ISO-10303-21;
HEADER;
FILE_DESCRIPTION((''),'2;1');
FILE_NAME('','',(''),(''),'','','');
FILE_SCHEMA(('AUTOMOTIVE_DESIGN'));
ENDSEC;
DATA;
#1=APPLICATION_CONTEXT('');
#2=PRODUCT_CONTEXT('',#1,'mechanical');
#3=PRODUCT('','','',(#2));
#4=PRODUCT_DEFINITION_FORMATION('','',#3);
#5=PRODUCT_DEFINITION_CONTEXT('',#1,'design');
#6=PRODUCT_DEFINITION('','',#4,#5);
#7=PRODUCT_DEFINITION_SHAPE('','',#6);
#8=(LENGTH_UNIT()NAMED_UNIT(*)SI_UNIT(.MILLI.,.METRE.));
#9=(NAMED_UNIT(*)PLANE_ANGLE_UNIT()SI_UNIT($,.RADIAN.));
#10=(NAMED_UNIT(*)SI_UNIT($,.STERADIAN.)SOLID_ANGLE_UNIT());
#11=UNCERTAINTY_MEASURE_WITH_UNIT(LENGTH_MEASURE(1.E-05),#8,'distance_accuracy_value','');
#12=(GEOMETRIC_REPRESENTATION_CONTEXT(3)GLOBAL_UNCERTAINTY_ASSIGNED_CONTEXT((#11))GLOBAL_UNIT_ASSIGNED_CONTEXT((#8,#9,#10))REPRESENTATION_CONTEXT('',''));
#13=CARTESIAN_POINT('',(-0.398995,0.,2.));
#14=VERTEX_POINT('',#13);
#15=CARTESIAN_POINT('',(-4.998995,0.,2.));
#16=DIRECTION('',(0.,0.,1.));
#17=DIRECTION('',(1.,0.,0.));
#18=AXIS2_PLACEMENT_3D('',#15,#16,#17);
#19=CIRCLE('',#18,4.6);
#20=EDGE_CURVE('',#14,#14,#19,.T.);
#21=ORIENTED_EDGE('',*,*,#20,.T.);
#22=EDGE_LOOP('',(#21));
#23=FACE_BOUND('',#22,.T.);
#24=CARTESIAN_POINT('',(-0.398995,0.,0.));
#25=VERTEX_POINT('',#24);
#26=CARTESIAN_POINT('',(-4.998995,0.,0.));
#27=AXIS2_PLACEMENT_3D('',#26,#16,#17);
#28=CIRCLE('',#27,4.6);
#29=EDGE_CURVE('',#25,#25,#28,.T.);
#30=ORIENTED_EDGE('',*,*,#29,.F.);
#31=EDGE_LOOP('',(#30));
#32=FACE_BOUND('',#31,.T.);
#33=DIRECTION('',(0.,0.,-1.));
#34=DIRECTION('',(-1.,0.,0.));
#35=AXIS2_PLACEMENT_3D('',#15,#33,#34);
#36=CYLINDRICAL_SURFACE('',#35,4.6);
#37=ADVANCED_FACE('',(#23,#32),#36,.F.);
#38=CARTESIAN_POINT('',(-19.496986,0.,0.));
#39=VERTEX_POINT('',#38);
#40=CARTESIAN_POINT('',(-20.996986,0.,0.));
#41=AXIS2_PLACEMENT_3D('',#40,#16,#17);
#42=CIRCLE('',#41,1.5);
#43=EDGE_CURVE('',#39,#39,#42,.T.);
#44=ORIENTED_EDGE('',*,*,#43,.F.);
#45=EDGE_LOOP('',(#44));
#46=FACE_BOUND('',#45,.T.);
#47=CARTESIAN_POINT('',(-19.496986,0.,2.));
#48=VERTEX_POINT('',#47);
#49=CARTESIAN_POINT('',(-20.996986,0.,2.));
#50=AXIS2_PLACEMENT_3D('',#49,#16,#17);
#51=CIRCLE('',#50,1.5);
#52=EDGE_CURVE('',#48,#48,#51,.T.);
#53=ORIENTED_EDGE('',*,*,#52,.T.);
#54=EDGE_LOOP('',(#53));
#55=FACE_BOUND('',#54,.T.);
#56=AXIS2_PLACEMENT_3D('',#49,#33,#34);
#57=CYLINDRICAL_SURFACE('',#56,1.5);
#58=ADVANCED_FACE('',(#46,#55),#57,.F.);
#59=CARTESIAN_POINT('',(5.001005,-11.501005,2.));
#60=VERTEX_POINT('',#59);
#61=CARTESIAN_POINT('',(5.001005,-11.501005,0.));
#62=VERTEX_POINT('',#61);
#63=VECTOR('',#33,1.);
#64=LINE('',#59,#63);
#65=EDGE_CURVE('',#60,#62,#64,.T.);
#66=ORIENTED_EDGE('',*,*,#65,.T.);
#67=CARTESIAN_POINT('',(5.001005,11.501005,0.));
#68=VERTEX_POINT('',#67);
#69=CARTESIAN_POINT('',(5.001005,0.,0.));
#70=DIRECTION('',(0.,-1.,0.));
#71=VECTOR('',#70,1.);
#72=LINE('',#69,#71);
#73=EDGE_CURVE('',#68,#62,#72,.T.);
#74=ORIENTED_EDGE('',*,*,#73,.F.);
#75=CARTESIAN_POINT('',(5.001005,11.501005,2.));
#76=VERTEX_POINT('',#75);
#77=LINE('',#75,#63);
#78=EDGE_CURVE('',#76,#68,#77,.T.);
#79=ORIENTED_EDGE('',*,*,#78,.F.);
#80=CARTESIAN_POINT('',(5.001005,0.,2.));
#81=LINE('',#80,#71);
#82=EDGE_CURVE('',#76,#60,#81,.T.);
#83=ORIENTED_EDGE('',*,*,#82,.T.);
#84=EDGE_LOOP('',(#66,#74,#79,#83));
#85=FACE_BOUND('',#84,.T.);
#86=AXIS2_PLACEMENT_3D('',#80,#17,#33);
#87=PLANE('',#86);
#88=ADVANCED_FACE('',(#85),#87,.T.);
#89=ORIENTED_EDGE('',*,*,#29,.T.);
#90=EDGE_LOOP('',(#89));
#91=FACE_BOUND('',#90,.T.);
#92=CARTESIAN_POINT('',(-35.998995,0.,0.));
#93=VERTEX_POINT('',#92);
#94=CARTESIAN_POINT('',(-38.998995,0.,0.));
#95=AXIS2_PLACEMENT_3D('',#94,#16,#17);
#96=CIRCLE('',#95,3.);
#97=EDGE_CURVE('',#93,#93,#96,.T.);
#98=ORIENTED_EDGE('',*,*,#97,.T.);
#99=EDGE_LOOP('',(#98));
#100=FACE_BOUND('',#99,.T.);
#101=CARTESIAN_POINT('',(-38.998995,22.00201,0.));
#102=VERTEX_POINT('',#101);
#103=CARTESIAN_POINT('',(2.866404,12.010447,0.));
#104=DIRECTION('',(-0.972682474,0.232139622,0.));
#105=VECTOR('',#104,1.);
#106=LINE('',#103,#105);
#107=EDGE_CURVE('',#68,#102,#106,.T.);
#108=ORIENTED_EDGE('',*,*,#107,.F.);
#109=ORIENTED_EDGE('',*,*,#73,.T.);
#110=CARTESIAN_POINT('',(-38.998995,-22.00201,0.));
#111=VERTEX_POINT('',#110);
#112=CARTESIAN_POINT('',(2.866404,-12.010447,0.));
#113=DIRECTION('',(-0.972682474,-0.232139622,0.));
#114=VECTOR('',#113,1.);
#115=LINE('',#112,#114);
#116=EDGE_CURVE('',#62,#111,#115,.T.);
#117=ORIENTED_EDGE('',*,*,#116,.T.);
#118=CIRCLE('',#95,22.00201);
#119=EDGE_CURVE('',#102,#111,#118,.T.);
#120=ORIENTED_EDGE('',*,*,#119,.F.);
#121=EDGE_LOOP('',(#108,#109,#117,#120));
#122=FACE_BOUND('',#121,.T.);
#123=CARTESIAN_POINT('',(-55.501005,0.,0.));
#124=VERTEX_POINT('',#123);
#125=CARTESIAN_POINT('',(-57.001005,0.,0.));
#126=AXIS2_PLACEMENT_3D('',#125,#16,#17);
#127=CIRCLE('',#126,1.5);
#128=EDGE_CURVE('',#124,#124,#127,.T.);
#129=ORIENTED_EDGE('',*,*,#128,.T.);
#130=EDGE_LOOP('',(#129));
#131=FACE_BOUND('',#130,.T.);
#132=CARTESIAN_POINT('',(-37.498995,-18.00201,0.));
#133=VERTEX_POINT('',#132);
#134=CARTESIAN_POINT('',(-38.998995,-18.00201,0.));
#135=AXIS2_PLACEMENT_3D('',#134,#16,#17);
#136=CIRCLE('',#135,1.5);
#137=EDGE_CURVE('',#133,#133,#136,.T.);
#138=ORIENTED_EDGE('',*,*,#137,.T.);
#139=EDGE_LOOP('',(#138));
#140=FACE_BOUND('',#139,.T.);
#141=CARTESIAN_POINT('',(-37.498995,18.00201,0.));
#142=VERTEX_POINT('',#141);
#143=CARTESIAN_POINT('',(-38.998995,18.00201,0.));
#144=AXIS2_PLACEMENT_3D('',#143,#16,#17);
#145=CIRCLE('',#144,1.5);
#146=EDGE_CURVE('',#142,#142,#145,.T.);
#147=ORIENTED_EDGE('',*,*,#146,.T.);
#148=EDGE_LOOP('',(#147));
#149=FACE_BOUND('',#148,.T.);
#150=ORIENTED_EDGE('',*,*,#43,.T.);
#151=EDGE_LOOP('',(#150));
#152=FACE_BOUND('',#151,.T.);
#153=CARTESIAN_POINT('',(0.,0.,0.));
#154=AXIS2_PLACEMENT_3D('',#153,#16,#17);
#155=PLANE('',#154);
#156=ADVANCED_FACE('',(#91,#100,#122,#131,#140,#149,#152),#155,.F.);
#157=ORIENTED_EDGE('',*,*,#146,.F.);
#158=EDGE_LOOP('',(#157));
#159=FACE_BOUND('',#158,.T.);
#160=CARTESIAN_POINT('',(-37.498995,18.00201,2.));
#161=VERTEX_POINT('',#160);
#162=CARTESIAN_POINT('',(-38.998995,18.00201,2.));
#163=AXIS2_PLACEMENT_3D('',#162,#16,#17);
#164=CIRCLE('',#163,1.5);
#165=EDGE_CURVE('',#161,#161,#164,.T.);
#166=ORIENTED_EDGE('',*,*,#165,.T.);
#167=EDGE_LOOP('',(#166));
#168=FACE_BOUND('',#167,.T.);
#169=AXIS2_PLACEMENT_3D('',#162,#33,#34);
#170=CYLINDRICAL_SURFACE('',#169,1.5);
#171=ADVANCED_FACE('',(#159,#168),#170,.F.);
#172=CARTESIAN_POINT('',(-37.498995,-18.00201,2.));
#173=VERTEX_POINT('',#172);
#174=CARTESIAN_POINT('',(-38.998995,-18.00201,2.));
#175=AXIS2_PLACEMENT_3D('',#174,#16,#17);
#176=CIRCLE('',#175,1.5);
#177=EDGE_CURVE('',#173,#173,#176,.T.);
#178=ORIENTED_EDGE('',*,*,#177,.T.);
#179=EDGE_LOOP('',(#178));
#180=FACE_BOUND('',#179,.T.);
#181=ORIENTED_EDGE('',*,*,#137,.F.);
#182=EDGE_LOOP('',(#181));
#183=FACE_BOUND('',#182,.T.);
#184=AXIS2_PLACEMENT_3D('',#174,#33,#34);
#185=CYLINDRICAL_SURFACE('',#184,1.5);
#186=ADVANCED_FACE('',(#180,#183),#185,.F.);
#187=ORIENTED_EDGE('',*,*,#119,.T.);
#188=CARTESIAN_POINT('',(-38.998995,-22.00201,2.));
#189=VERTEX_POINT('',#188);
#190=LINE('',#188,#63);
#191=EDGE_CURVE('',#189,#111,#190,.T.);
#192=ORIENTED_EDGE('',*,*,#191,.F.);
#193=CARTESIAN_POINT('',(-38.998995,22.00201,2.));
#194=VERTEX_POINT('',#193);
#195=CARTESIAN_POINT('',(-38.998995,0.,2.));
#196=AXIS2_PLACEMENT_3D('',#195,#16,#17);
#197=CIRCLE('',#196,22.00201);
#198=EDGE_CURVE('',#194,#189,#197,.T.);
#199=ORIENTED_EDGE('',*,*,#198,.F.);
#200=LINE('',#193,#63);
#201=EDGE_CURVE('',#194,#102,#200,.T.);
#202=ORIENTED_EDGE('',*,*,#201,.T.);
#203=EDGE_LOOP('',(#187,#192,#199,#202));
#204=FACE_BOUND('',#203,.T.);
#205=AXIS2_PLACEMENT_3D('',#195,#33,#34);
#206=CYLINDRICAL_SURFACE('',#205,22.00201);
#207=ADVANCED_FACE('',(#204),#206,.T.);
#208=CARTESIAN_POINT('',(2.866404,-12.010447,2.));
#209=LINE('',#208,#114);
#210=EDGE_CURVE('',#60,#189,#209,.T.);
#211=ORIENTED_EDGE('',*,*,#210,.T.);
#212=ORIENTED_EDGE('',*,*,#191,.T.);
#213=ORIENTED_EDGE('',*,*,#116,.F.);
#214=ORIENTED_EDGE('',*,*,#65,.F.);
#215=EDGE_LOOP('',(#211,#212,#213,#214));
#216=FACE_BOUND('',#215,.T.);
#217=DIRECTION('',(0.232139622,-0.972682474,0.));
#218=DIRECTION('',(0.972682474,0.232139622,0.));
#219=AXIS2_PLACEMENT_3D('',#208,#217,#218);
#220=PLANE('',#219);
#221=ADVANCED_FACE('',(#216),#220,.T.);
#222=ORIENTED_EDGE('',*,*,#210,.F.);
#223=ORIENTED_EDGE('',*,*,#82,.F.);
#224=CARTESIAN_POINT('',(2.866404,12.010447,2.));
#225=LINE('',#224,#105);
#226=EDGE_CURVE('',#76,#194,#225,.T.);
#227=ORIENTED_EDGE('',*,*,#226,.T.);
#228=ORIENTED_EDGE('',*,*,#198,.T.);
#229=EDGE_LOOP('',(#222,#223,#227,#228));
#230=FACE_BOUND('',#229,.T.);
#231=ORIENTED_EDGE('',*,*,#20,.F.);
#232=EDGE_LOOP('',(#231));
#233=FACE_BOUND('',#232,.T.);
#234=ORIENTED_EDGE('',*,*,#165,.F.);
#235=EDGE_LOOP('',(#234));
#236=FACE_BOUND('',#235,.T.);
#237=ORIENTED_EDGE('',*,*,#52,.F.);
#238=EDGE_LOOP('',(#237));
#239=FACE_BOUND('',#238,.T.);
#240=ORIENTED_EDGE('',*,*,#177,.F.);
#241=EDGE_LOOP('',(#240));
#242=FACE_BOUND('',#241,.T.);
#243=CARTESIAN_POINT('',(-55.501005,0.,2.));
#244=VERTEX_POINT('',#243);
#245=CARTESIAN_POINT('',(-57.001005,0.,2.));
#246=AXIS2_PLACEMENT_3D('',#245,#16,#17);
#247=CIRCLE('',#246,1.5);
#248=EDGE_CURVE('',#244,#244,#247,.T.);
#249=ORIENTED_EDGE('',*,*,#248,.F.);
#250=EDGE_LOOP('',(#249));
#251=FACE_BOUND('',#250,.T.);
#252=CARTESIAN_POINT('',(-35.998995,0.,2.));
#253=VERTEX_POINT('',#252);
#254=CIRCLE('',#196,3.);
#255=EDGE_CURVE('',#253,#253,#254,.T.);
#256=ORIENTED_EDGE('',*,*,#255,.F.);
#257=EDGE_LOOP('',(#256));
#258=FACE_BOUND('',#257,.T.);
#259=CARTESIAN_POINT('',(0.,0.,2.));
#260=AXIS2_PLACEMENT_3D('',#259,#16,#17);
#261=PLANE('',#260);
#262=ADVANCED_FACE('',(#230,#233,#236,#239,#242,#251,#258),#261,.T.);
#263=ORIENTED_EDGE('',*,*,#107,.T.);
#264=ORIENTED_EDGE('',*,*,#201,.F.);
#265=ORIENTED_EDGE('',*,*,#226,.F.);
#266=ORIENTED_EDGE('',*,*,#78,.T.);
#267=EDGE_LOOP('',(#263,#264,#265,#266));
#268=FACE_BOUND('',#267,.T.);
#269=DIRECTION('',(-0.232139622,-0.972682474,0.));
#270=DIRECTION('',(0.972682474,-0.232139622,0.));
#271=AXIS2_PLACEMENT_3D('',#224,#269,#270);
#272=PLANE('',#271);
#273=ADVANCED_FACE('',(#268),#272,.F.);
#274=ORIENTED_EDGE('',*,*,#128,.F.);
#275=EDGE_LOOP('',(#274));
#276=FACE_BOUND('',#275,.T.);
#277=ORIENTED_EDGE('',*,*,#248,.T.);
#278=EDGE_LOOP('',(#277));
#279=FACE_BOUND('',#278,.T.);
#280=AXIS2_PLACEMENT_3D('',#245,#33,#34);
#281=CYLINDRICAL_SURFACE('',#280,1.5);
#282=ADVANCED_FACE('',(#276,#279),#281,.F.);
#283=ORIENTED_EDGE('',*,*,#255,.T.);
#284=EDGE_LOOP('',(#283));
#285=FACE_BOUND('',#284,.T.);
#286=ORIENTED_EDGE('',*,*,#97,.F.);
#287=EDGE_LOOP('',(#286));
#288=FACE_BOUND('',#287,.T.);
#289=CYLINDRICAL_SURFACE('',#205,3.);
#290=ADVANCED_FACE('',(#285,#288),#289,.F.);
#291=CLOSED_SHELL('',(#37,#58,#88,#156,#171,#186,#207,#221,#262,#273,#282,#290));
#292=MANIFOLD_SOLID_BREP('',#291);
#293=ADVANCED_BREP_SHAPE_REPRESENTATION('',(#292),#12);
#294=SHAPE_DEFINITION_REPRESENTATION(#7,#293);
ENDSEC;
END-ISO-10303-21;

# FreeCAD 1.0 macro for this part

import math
import FreeCAD as App
import Part
import Sketcher
from FreeCAD import Vector
Q = App.Units.Quantity

doc = App.newDocument("Part")
params = doc.addObject("Spreadsheet::Sheet", "Params")
for row, (alias, value) in enumerate([
    ("sketch1_diameter", "3 mm"),
    ("sketch1_diameter2", "6 mm"),
    ("sketch1_diameter3", "9.2 mm"),
    ("pad1_length", "2 mm"),
], start=1):
    params.set(f"A{row}", alias)
    params.set(f"B{row}", "=" + value)
    params.setAlias(f"B{row}", alias)

body = doc.addObject("PartDesign::Body", "Body")

# Sketch on XY plane
sketch1 = body.newObject("Sketcher::SketchObject", "Sketch")
sketch1.AttachmentSupport = (doc.getObject("XY_Plane"), [""])
sketch1.MapMode = "FlatFace"
sketch1.addGeometry([
    Part.LineSegment(Vector(5, -11.5, 0), Vector(5, 11.5, 0)),  # 0
    Part.LineSegment(Vector(5, 11.5, 0), Vector(-39, 22, 0)),  # 1
    Part.ArcOfCircle(Part.Circle(Vector(-39, 0, 0), Vector(0, 0, 1), 22), math.radians(90), math.radians(270)),  # 2
    Part.LineSegment(Vector(-39, -22, 0), Vector(5, -11.5, 0)),  # 3
    Part.Circle(Vector(-39, -18, 0), Vector(0, 0, 1), 1.5),  # 4
    Part.Circle(Vector(-57, 0, 0), Vector(0, 0, 1), 1.5),  # 5
    Part.Circle(Vector(-39, 0, 0), Vector(0, 0, 1), 3),  # 6
    Part.Circle(Vector(-39, 18, 0), Vector(0, 0, 1), 1.5),  # 7
    Part.Circle(Vector(-21, 0, 0), Vector(0, 0, 1), 1.5),  # 8
    Part.Circle(Vector(-5, 0, 0), Vector(0, 0, 1), 4.6),  # 9
], False)
sketch1.addConstraint([
    Sketcher.Constraint("Coincident", 0, 2, 1, 1),
    Sketcher.Constraint("Coincident", 1, 2, 2, 1),
    Sketcher.Constraint("Coincident", 2, 2, 3, 1),
    Sketcher.Constraint("Coincident", 3, 2, 0, 1),
    Sketcher.Constraint("Vertical", 0),
    Sketcher.Constraint("Coincident", 6, 3, 2, 3),
    Sketcher.Constraint("Equal", 4, 5),
    Sketcher.Constraint("Equal", 5, 7),
    Sketcher.Constraint("Equal", 7, 8),
    Sketcher.Constraint("Symmetric", 4, 3, 7, 3, -1),
    Sketcher.Constraint("Symmetric", 1, 2, 2, 2, -1),
    Sketcher.Constraint("PointOnObject", 5, 3, -1),
    Sketcher.Constraint("PointOnObject", 8, 3, -1),
    Sketcher.Constraint("PointOnObject", 9, 3, -1),
    Sketcher.Constraint("Vertical", 2, 3, 4, 3),
    Sketcher.Constraint("Vertical", 7, 3, 1, 2),
    Sketcher.Constraint("Equal", 1, 3),
    Sketcher.Constraint("Diameter", 4, Q("3 mm")),
    Sketcher.Constraint("Diameter", 6, Q("6 mm")),
    Sketcher.Constraint("Diameter", 9, Q("9.2 mm")),
    Sketcher.Constraint("DistanceX", 6, 3, 9, 3, Q("34 mm")),
    Sketcher.Constraint("DistanceX", 9, 3, 0, 2, Q("10 mm")),
    Sketcher.Constraint("DistanceY", 7, 3, 1, 2, Q("4 mm")),
    Sketcher.Constraint("Radius", 2, Q("22.00201 mm")),
    Sketcher.Constraint("DistanceY", 0, 1, 0, 2, Q("23.00201 mm")),
    Sketcher.Constraint("DistanceX", 5, 3, 2, 3, Q("18.00201 mm")),
    Sketcher.Constraint("DistanceX", 6, 3, 8, 3, Q("18.00201 mm")),
    Sketcher.Constraint("DistanceX", 2, 3, -1, 1, Q("38.998995 mm")),
])
sketch1.setExpression("Constraints[17]", "Params.sketch1_diameter")
sketch1.setExpression("Constraints[18]", "Params.sketch1_diameter2")
sketch1.setExpression("Constraints[19]", "Params.sketch1_diameter3")
pad1 = body.newObject("PartDesign::Pad", "Pad")
pad1.Profile = sketch1
pad1.setExpression("Length", "Params.pad1_length")

doc.recompute()
